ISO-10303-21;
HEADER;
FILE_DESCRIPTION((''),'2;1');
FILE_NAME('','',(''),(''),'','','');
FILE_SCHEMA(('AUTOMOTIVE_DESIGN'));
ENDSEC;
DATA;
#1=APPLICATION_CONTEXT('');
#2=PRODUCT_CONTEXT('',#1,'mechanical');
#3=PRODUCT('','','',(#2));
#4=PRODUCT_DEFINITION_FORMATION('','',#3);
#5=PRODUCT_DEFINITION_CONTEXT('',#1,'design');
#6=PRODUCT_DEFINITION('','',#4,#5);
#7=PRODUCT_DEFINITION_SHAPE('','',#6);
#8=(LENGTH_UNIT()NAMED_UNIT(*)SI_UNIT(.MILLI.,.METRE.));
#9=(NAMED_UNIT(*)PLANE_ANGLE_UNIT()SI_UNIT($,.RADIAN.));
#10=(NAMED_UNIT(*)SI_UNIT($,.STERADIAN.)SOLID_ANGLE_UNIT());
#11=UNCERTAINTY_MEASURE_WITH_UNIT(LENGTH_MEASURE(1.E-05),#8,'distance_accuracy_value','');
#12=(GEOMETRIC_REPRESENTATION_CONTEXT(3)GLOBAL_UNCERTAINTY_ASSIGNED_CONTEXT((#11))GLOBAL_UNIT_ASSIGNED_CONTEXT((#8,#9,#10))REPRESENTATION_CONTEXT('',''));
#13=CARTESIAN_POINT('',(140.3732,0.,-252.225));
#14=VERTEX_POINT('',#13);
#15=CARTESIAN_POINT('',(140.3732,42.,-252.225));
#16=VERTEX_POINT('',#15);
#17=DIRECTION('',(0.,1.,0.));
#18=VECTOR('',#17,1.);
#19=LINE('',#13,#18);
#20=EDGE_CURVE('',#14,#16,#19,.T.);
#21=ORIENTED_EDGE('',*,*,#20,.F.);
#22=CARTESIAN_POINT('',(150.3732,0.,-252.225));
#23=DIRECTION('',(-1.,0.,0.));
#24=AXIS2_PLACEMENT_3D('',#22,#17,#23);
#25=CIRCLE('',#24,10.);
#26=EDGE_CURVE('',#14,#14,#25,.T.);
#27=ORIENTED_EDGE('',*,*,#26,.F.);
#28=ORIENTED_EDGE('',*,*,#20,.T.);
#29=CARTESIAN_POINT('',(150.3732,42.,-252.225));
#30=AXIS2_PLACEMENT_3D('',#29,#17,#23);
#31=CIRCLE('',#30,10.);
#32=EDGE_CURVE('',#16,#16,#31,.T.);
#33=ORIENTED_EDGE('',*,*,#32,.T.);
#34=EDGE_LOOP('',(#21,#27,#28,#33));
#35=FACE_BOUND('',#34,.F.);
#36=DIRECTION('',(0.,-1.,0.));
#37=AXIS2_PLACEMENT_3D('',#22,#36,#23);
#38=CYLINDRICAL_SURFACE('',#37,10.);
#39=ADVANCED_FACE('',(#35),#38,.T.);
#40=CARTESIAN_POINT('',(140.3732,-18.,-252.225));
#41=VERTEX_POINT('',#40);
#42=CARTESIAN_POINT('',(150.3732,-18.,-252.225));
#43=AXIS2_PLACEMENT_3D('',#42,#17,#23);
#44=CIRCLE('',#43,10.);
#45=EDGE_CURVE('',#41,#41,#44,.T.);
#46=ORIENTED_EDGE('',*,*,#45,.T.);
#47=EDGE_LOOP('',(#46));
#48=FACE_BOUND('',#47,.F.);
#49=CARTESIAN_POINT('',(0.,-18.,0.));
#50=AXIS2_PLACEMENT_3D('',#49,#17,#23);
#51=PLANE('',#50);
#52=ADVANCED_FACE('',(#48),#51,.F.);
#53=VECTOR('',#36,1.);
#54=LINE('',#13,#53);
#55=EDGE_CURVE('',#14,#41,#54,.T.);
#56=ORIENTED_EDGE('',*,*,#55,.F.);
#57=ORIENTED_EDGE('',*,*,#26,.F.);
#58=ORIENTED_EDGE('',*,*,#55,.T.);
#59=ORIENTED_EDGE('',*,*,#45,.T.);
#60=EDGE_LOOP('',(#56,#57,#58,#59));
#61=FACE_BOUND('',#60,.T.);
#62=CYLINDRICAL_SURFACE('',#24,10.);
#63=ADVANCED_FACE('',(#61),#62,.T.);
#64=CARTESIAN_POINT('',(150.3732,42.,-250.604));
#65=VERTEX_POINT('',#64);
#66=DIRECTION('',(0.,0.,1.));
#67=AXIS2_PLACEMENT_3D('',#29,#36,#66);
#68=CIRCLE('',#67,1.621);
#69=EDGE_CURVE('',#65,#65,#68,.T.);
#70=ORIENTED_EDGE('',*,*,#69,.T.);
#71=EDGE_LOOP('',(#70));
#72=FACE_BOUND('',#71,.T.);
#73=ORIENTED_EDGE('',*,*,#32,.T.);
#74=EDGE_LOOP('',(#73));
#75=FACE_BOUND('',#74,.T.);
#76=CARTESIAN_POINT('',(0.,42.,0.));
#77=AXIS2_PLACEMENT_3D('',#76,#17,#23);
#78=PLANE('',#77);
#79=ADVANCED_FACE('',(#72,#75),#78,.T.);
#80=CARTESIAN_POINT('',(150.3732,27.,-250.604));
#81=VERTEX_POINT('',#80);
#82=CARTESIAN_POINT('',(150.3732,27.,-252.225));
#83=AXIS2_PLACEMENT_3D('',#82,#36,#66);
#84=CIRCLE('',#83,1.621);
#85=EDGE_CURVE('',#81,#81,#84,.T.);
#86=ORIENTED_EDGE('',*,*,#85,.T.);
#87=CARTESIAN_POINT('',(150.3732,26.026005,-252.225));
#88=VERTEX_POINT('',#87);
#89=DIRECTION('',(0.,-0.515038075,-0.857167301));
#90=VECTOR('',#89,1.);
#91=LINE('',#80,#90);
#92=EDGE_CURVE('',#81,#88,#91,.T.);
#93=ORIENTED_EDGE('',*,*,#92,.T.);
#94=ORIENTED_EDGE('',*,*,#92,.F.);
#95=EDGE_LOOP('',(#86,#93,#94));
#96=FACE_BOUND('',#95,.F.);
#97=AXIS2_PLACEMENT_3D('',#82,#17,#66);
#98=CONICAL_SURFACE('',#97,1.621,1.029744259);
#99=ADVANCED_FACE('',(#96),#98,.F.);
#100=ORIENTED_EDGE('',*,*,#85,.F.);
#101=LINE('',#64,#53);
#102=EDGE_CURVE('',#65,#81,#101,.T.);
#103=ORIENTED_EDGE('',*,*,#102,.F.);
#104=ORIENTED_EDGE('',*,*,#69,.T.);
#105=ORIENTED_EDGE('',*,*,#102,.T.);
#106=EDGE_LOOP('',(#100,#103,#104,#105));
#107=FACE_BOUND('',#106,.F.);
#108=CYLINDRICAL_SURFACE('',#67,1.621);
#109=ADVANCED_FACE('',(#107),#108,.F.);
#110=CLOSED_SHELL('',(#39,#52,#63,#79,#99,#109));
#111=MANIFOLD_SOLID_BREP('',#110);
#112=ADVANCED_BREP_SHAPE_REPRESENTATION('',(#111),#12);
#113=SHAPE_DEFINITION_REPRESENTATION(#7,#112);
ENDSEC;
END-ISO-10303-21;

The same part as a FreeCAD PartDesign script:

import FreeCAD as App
import Part
import Sketcher
from FreeCAD import Vector
Q = App.Units.Quantity

doc = App.newDocument("Part")
params = doc.addObject("Spreadsheet::Sheet", "Params")
for row, (alias, value) in enumerate([
    ("sketch1_diameter", "20 mm"),
    ("pad1_length", "42 mm"),
    ("pad1_length2", "18 mm"),
    ("hole_diameter", "3.242 mm"),
    ("hole_depth", "15 mm"),
], start=1):
    params.set(f"A{row}", alias)
    params.set(f"B{row}", "=" + value)
    params.setAlias(f"B{row}", alias)

body = doc.addObject("PartDesign::Body", "Body")

# Sketch on XZ plane
sketch1 = body.newObject("Sketcher::SketchObject", "Sketch")
sketch1.AttachmentSupport = (doc.getObject("XZ_Plane"), [""])
sketch1.MapMode = "FlatFace"
sketch1.addGeometry(Part.Circle(Vector(150, -252, 0), Vector(0, 0, 1), 10), False)
sketch1.addConstraint(Sketcher.Constraint("Diameter", 0, Q("20 mm")))
sketch1.addConstraint(Sketcher.Constraint("DistanceY", 0, 3, -1, 1, Q("252.225 mm")))
sketch1.addConstraint(Sketcher.Constraint("DistanceX", -1, 1, 0, 3, Q("150.3732 mm")))
sketch1.setExpression("Constraints[0]", "Params.sketch1_diameter")
pad1 = body.newObject("PartDesign::Pad", "Pad")
pad1.Profile = sketch1
pad1.Type = "TwoLengths"
pad1.setExpression("Length", "Params.pad1_length")
pad1.setExpression("Length2", "Params.pad1_length2")
pad1.Reversed = True

# Sketch on XZ plane
sketch2 = body.newObject("Sketcher::SketchObject", "Sketch001")
sketch2.AttachmentSupport = (doc.getObject("XZ_Plane"), [""])
sketch2.MapMode = "FlatFace"
sketch2.AttachmentOffset = App.Placement(Vector(0, 0, -42), App.Rotation())
sketch2.addGeometry(Part.Circle(Vector(150.4, -252.2, 0), Vector(0, 0, 1), 1.6), False)
sketch2.addConstraint(Sketcher.Constraint("Diameter", 0, Q("3.242 mm")))
sketch2.addConstraint(Sketcher.Constraint("DistanceY", 0, 3, -1, 1, Q("252.225 mm")))
sketch2.addConstraint(Sketcher.Constraint("DistanceX", -1, 1, 0, 3, Q("150.3732 mm")))
doc.recompute()
hole = body.newObject("PartDesign::Hole", "Hole")
hole.Profile = sketch2
hole.ThreadType = "None"
hole.setExpression("Diameter", "Params.hole_diameter")
hole.DepthType = "Dimension"
hole.setExpression("Depth", "Params.hole_depth")
hole.DrillPoint = "Angled"
hole.DrillPointAngle = 118
hole.Reversed = True

doc.recompute()
